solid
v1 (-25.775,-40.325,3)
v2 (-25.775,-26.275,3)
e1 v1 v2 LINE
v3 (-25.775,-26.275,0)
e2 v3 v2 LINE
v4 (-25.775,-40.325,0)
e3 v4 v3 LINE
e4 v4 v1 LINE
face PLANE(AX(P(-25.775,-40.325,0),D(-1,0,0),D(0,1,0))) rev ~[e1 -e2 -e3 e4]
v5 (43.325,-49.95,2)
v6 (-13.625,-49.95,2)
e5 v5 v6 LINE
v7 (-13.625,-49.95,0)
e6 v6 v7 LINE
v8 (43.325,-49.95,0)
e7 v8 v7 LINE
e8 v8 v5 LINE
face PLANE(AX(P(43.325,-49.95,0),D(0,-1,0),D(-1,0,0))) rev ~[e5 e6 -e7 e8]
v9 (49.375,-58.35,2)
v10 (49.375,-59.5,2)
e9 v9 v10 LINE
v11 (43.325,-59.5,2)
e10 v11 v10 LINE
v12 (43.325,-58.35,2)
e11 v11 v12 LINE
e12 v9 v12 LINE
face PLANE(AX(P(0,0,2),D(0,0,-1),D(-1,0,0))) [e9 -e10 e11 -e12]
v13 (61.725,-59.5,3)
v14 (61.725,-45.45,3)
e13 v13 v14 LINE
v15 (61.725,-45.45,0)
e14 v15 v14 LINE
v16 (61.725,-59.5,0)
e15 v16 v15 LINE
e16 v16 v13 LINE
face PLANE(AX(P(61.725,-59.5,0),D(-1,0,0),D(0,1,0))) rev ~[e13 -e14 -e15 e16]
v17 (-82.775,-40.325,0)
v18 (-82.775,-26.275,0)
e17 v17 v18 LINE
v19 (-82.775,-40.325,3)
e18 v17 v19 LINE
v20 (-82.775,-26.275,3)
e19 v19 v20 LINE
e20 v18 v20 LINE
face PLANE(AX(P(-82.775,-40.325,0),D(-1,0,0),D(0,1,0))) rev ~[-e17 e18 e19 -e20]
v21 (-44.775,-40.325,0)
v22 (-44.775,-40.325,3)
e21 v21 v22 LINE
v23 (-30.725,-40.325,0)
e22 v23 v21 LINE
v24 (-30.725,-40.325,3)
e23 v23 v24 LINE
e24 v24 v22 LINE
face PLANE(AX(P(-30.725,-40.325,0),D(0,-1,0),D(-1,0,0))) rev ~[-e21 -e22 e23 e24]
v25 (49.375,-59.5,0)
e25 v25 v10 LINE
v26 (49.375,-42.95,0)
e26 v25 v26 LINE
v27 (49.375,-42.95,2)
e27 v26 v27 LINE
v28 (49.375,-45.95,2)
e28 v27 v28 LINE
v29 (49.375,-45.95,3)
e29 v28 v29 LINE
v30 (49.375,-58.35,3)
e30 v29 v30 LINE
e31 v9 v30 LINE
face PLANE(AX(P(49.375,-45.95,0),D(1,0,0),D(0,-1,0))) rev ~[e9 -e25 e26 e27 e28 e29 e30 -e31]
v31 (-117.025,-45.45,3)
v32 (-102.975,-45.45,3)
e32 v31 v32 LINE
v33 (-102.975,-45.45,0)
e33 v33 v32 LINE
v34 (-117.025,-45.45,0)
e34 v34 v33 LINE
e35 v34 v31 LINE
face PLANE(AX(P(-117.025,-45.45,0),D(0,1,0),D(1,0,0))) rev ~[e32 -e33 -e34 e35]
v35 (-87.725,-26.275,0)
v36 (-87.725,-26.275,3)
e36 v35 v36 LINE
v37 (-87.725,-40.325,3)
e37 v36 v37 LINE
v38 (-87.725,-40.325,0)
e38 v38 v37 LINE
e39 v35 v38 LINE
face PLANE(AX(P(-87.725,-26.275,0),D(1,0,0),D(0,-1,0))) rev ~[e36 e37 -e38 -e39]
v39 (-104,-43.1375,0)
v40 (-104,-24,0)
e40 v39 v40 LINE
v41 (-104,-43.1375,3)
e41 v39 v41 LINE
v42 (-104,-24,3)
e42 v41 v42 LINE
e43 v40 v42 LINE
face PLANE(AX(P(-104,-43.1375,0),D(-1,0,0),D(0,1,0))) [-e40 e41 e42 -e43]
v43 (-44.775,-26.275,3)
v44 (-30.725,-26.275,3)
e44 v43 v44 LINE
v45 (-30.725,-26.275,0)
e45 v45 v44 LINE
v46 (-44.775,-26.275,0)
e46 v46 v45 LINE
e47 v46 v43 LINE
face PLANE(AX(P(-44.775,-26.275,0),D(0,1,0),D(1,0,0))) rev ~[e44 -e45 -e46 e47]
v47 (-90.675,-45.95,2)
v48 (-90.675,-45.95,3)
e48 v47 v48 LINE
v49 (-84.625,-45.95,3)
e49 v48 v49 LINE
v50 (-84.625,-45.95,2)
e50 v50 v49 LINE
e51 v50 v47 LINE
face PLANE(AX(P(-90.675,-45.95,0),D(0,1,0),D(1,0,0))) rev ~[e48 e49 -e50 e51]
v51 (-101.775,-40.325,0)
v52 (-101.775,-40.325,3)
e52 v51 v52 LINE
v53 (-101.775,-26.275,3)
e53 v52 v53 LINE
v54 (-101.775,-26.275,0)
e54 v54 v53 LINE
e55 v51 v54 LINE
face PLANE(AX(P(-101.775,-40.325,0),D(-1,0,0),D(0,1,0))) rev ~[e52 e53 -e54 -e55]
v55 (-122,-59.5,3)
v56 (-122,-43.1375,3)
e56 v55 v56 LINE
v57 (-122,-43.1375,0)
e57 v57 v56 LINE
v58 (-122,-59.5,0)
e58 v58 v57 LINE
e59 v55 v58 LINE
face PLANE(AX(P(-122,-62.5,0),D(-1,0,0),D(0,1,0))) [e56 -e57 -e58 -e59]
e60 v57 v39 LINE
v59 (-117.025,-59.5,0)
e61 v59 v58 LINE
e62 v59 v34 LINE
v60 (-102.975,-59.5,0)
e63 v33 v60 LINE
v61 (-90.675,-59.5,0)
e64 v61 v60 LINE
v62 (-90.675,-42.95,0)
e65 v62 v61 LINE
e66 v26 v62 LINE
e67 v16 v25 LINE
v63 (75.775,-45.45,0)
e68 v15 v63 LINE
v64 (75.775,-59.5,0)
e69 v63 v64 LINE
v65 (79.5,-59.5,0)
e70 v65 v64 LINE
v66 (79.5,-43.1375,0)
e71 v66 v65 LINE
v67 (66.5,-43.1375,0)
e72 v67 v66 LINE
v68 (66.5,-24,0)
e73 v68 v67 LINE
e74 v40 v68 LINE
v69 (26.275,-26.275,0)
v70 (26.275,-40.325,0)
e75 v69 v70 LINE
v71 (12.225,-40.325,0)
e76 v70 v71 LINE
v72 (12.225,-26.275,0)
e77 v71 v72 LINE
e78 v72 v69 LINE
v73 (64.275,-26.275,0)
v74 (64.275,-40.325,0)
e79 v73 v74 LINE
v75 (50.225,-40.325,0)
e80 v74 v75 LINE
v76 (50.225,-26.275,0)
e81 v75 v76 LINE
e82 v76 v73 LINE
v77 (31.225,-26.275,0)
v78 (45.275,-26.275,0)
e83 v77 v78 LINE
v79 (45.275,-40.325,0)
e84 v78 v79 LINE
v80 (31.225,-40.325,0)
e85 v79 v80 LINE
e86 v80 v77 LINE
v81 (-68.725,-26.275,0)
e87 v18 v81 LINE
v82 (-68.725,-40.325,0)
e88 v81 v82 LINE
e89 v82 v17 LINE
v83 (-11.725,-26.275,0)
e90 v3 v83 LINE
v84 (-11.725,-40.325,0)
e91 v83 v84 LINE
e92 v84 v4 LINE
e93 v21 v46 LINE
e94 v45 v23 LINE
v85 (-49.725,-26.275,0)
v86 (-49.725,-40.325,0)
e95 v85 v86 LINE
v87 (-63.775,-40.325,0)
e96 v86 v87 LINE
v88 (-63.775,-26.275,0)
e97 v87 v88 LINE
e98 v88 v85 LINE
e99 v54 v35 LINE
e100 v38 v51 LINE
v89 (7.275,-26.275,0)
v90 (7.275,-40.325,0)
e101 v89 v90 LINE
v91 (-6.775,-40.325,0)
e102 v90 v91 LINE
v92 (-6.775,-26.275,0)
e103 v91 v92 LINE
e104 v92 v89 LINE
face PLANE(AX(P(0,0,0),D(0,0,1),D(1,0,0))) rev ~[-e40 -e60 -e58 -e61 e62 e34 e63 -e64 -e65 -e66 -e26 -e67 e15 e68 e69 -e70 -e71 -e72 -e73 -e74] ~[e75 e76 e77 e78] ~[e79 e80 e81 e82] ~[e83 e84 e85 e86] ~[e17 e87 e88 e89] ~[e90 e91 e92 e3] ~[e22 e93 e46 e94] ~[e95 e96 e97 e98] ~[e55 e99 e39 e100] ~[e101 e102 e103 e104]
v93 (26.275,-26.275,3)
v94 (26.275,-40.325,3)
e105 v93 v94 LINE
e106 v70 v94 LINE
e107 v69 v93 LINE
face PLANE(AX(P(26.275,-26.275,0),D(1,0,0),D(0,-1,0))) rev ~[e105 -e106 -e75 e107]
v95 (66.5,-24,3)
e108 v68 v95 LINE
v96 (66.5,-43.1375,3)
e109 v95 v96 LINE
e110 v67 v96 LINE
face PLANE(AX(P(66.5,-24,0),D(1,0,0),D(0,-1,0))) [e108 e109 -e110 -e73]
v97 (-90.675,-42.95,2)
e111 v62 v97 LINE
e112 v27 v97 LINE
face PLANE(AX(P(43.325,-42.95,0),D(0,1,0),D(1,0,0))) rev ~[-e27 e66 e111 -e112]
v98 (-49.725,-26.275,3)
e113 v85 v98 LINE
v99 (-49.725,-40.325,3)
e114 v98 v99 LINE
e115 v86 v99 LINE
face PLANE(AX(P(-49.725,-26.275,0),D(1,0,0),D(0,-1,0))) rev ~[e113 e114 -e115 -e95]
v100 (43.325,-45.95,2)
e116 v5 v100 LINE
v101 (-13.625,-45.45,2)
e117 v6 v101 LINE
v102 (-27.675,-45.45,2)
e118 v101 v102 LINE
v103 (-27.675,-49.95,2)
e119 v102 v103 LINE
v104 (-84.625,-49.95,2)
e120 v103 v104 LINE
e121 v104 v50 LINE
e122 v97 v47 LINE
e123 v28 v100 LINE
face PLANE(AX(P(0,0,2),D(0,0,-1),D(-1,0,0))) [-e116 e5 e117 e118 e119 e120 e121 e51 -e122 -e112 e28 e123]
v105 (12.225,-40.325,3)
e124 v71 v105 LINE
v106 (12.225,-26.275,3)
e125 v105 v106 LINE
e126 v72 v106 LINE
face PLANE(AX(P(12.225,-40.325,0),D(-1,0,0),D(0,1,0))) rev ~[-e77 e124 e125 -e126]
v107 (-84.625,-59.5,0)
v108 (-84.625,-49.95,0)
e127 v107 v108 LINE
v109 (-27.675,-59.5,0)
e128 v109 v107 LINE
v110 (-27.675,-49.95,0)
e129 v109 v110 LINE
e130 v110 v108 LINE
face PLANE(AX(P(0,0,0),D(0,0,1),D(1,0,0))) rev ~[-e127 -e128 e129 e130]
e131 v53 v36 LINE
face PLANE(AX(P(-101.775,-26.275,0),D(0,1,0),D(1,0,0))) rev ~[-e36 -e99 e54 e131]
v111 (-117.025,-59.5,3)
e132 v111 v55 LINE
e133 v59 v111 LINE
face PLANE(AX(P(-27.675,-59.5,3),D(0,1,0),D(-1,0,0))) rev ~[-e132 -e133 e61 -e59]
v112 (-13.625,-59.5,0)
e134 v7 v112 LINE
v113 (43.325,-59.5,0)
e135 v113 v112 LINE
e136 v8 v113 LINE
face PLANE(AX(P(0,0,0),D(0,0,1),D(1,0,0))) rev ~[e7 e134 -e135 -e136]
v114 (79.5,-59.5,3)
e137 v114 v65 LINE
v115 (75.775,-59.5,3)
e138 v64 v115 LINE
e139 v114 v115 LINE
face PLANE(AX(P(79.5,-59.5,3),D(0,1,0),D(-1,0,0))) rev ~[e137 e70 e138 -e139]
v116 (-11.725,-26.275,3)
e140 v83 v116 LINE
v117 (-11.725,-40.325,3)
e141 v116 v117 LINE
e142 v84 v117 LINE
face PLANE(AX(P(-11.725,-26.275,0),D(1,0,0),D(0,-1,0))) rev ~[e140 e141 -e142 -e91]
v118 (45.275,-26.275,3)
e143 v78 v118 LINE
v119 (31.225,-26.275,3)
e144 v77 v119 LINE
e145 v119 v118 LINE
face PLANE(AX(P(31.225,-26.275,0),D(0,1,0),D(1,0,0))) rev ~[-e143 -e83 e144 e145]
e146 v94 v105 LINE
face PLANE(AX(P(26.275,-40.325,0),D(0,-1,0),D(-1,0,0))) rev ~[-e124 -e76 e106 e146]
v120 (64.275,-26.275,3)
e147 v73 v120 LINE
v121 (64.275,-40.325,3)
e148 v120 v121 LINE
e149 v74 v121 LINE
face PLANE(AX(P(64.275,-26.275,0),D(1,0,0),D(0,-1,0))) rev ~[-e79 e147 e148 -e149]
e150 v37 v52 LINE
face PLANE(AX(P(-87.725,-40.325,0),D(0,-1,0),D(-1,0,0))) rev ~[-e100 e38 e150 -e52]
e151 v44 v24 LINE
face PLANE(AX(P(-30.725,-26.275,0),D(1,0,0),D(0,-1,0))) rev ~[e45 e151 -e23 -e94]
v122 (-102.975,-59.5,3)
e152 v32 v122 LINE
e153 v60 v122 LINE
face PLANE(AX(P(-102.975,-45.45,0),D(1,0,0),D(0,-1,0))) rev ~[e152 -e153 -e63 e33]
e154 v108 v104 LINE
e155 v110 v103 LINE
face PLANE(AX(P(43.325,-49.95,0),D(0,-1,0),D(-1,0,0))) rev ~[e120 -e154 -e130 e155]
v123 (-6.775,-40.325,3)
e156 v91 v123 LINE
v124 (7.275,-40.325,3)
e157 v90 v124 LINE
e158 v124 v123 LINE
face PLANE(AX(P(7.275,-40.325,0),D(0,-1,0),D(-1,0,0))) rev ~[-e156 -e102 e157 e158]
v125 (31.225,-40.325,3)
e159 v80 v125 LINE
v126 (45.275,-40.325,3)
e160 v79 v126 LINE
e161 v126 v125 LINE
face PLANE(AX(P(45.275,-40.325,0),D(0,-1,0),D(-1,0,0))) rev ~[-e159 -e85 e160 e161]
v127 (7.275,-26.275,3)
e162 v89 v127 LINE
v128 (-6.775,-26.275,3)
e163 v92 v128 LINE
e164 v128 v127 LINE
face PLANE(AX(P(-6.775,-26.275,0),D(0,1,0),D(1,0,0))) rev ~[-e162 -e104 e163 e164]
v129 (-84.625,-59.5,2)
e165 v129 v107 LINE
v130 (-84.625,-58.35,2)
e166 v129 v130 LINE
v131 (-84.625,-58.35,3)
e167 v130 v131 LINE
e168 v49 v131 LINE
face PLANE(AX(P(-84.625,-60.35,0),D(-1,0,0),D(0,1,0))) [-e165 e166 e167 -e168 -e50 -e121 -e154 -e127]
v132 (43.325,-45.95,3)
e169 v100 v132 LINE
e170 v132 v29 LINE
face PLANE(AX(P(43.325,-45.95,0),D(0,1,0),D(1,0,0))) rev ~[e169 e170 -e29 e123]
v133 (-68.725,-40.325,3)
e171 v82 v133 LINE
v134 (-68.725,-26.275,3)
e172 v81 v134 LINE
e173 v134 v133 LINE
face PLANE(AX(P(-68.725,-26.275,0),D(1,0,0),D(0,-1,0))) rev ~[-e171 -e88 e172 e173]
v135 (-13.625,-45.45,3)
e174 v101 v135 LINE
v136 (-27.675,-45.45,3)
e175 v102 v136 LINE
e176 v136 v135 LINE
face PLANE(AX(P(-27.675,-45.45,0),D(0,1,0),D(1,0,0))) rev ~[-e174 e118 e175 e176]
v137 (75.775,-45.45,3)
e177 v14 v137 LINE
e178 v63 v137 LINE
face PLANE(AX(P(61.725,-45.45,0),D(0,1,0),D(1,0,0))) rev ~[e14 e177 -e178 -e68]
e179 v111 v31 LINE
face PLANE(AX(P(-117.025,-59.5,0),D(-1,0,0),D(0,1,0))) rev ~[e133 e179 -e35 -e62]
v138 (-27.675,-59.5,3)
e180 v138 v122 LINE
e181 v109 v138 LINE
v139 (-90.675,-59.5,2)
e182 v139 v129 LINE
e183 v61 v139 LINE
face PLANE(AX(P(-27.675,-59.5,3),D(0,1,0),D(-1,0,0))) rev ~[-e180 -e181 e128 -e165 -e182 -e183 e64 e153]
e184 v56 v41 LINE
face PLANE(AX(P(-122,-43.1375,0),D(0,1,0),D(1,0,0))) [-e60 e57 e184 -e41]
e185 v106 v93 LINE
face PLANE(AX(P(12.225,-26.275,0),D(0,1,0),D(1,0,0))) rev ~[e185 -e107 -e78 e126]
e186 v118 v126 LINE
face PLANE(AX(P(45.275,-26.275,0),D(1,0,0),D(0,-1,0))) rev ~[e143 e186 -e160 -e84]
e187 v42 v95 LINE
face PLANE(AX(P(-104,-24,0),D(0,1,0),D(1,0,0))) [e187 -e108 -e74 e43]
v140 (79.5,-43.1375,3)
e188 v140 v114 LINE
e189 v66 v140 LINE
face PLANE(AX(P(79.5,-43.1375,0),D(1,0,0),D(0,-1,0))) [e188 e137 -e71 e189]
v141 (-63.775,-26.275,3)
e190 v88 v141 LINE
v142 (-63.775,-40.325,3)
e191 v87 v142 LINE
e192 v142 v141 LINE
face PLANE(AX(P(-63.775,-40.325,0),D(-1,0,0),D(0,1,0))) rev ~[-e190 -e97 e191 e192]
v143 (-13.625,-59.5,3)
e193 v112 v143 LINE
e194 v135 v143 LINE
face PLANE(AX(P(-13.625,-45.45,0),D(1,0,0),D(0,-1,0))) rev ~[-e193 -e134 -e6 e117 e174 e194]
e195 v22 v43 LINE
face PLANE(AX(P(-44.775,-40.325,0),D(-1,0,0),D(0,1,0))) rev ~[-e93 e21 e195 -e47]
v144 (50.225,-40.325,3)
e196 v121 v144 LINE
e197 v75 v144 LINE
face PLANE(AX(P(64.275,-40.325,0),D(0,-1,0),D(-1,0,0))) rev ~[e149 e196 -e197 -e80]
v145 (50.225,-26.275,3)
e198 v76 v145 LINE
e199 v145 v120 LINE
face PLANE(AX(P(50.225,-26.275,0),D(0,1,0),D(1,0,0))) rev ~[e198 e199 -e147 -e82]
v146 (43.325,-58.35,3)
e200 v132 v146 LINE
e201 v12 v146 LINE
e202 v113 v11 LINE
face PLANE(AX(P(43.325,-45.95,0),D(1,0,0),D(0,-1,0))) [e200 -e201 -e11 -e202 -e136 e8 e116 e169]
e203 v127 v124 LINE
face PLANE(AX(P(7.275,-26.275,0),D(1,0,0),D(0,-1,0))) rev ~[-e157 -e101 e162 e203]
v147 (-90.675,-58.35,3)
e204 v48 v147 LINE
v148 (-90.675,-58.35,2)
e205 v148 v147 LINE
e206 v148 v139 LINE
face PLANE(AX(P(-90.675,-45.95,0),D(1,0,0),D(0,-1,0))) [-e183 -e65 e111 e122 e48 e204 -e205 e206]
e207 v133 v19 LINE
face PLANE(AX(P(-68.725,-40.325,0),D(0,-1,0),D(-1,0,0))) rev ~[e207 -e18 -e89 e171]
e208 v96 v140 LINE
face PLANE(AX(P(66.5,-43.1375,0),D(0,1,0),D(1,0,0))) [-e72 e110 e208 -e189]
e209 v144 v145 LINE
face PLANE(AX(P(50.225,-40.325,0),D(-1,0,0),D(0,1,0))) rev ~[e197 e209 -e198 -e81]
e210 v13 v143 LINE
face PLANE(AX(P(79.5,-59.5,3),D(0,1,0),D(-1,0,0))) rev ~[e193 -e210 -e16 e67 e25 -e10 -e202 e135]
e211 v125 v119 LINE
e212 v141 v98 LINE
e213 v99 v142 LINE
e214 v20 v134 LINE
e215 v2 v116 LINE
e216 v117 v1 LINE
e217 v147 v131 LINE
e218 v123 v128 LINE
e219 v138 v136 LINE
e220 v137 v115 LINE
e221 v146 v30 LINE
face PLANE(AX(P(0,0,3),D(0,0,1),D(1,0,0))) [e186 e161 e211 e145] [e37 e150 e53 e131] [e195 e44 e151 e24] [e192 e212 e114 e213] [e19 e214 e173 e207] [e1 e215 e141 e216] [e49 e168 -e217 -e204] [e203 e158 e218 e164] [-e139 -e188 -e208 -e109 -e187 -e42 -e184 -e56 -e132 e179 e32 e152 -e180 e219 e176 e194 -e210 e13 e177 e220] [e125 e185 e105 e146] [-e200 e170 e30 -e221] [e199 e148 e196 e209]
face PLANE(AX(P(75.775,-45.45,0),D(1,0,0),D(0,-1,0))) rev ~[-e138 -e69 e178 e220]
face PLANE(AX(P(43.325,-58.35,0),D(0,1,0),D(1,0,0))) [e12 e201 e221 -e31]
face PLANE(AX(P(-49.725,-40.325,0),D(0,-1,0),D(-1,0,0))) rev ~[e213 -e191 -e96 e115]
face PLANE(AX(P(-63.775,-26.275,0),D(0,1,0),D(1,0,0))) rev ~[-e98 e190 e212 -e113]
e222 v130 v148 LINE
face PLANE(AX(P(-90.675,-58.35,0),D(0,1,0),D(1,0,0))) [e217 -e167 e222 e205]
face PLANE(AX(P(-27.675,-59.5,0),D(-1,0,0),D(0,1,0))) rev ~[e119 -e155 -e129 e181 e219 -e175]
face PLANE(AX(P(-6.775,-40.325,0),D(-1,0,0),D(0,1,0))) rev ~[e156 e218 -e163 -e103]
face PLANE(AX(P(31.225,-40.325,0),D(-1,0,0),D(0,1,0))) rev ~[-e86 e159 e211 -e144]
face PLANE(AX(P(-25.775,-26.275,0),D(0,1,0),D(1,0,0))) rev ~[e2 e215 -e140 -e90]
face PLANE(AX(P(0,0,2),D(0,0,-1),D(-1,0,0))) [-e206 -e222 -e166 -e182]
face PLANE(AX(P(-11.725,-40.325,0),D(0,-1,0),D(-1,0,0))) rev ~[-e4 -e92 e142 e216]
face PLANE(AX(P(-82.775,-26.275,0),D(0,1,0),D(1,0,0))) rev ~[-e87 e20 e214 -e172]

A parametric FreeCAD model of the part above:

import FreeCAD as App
import Part
import Sketcher

V = App.Vector
Q = App.Units.Quantity

doc = App.newDocument("Part")
body = doc.addObject("PartDesign::Body", "Body")

sketch1 = body.newObject("Sketcher::SketchObject", "Sketch")
sketch1.AttachmentSupport = (doc.getObject("XY_Plane"), [""])
sketch1.MapMode = "FlatFace"
sketch1.addGeometry([
    Part.LineSegment(V(-122, -43.1375, 0), V(-122, -62.5, 0)),
    Part.LineSegment(V(-122, -62.5, 0), V(79.5, -62.5, 0)),
    Part.LineSegment(V(79.5, -62.5, 0), V(79.5, -43.1375, 0)),
    Part.LineSegment(V(79.5, -43.1375, 0), V(66.5, -43.1375, 0)),
    Part.LineSegment(V(66.5, -43.1375, 0), V(66.5, -24, 0)),
    Part.LineSegment(V(66.5, -24, 0), V(-104, -24, 0)),
    Part.LineSegment(V(-104, -24, 0), V(-104, -43.1375, 0)),
    Part.LineSegment(V(-104, -43.1375, 0), V(-122, -43.1375, 0)),
    Part.LineSegment(V(-117.025, -45.45, 0), V(-102.975, -45.45, 0)),
    Part.LineSegment(V(-102.975, -45.45, 0), V(-102.975, -59.5, 0)),
    Part.LineSegment(V(-102.975, -59.5, 0), V(-117.025, -59.5, 0)),
    Part.LineSegment(V(-117.025, -59.5, 0), V(-117.025, -45.45, 0)),
    Part.LineSegment(V(-90.675, -58.35, 0), V(-90.675, -45.95, 0)),
    Part.LineSegment(V(-90.675, -45.95, 0), V(-84.625, -45.95, 0)),
    Part.LineSegment(V(-84.625, -45.95, 0), V(-84.625, -58.35, 0)),
    Part.LineSegment(V(-84.625, -58.35, 0), V(-90.675, -58.35, 0)),
    Part.LineSegment(V(-27.675, -59.5, 0), V(-27.675, -45.45, 0)),
    Part.LineSegment(V(-27.675, -45.45, 0), V(-13.625, -45.45, 0)),
    Part.LineSegment(V(-13.625, -45.45, 0), V(-13.625, -59.5, 0)),
    Part.LineSegment(V(-13.625, -59.5, 0), V(-27.675, -59.5, 0)),
    Part.LineSegment(V(43.325, -58.35, 0), V(43.325, -45.95, 0)),
    Part.LineSegment(V(43.325, -45.95, 0), V(49.375, -45.95, 0)),
    Part.LineSegment(V(49.375, -45.95, 0), V(49.375, -58.35, 0)),
    Part.LineSegment(V(49.375, -58.35, 0), V(43.325, -58.35, 0)),
    Part.LineSegment(V(61.725, -59.5, 0), V(61.725, -45.45, 0)),
    Part.LineSegment(V(61.725, -45.45, 0), V(75.775, -45.45, 0)),
    Part.LineSegment(V(75.775, -45.45, 0), V(75.775, -59.5, 0)),
    Part.LineSegment(V(75.775, -59.5, 0), V(61.725, -59.5, 0)),
    Part.LineSegment(V(-87.725, -26.275, 0), V(-87.725, -40.325, 0)),
    Part.LineSegment(V(-87.725, -40.325, 0), V(-101.775, -40.325, 0)),
    Part.LineSegment(V(-101.775, -40.325, 0), V(-101.775, -26.275, 0)),
    Part.LineSegment(V(-101.775, -26.275, 0), V(-87.725, -26.275, 0)),
    Part.LineSegment(V(-68.725, -40.325, 0), V(-82.775, -40.325, 0)),
    Part.LineSegment(V(-82.775, -40.325, 0), V(-82.775, -26.275, 0)),
    Part.LineSegment(V(-82.775, -26.275, 0), V(-68.725, -26.275, 0)),
    Part.LineSegment(V(-68.725, -26.275, 0), V(-68.725, -40.325, 0)),
    Part.LineSegment(V(-49.725, -26.275, 0), V(-49.725, -40.325, 0)),
    Part.LineSegment(V(-49.725, -40.325, 0), V(-63.775, -40.325, 0)),
    Part.LineSegment(V(-63.775, -40.325, 0), V(-63.775, -26.275, 0)),
    Part.LineSegment(V(-63.775, -26.275, 0), V(-49.725, -26.275, 0)),
    Part.LineSegment(V(-30.725, -40.325, 0), V(-44.775, -40.325, 0)),
    Part.LineSegment(V(-44.775, -40.325, 0), V(-44.775, -26.275, 0)),
    Part.LineSegment(V(-44.775, -26.275, 0), V(-30.725, -26.275, 0)),
    Part.LineSegment(V(-30.725, -26.275, 0), V(-30.725, -40.325, 0)),
    Part.LineSegment(V(-25.775, -40.325, 0), V(-25.775, -26.275, 0)),
    Part.LineSegment(V(-25.775, -26.275, 0), V(-11.725, -26.275, 0)),
    Part.LineSegment(V(-11.725, -26.275, 0), V(-11.725, -40.325, 0)),
    Part.LineSegment(V(-11.725, -40.325, 0), V(-25.775, -40.325, 0)),
    Part.LineSegment(V(7.275, -40.325, 0), V(-6.775, -40.325, 0)),
    Part.LineSegment(V(-6.775, -40.325, 0), V(-6.775, -26.275, 0)),
    Part.LineSegment(V(-6.775, -26.275, 0), V(7.275, -26.275, 0)),
    Part.LineSegment(V(7.275, -26.275, 0), V(7.275, -40.325, 0)),
    Part.LineSegment(V(26.275, -40.325, 0), V(12.225, -40.325, 0)),
    Part.LineSegment(V(12.225, -40.325, 0), V(12.225, -26.275, 0)),
    Part.LineSegment(V(12.225, -26.275, 0), V(26.275, -26.275, 0)),
    Part.LineSegment(V(26.275, -26.275, 0), V(26.275, -40.325, 0)),
    Part.LineSegment(V(31.225, -40.325, 0), V(31.225, -26.275, 0)),
    Part.LineSegment(V(31.225, -26.275, 0), V(45.275, -26.275, 0)),
    Part.LineSegment(V(45.275, -26.275, 0), V(45.275, -40.325, 0)),
    Part.LineSegment(V(45.275, -40.325, 0), V(31.225, -40.325, 0)),
    Part.LineSegment(V(50.225, -40.325, 0), V(50.225, -26.275, 0)),
    Part.LineSegment(V(50.225, -26.275, 0), V(64.275, -26.275, 0)),
    Part.LineSegment(V(64.275, -26.275, 0), V(64.275, -40.325, 0)),
    Part.LineSegment(V(64.275, -40.325, 0), V(50.225, -40.325, 0)),
], False)
sketch1.addConstraint([
    Sketcher.Constraint("Coincident", 0, 2, 1, 1),
    Sketcher.Constraint("Coincident", 1, 2, 2, 1),
    Sketcher.Constraint("Coincident", 2, 2, 3, 1),
    Sketcher.Constraint("Coincident", 3, 2, 4, 1),
    Sketcher.Constraint("Coincident", 4, 2, 5, 1),
    Sketcher.Constraint("Coincident", 5, 2, 6, 1),
    Sketcher.Constraint("Coincident", 6, 2, 7, 1),
    Sketcher.Constraint("Coincident", 7, 2, 0, 1),
    Sketcher.Constraint("Coincident", 8, 2, 9, 1),
    Sketcher.Constraint("Coincident", 9, 2, 10, 1),
    Sketcher.Constraint("Coincident", 10, 2, 11, 1),
    Sketcher.Constraint("Coincident", 11, 2, 8, 1),
    Sketcher.Constraint("Coincident", 12, 2, 13, 1),
    Sketcher.Constraint("Coincident", 13, 2, 14, 1),
    Sketcher.Constraint("Coincident", 14, 2, 15, 1),
    Sketcher.Constraint("Coincident", 15, 2, 12, 1),
    Sketcher.Constraint("Coincident", 16, 2, 17, 1),
    Sketcher.Constraint("Coincident", 17, 2, 18, 1),
    Sketcher.Constraint("Coincident", 18, 2, 19, 1),
    Sketcher.Constraint("Coincident", 19, 2, 16, 1),
    Sketcher.Constraint("Coincident", 20, 2, 21, 1),
    Sketcher.Constraint("Coincident", 21, 2, 22, 1),
    Sketcher.Constraint("Coincident", 22, 2, 23, 1),
    Sketcher.Constraint("Coincident", 23, 2, 20, 1),
    Sketcher.Constraint("Coincident", 24, 2, 25, 1),
    Sketcher.Constraint("Coincident", 25, 2, 26, 1),
    Sketcher.Constraint("Coincident", 26, 2, 27, 1),
    Sketcher.Constraint("Coincident", 27, 2, 24, 1),
    Sketcher.Constraint("Coincident", 28, 2, 29, 1),
    Sketcher.Constraint("Coincident", 29, 2, 30, 1),
    Sketcher.Constraint("Coincident", 30, 2, 31, 1),
    Sketcher.Constraint("Coincident", 31, 2, 28, 1),
    Sketcher.Constraint("Coincident", 32, 2, 33, 1),
    Sketcher.Constraint("Coincident", 33, 2, 34, 1),
    Sketcher.Constraint("Coincident", 34, 2, 35, 1),
    Sketcher.Constraint("Coincident", 35, 2, 32, 1),
    Sketcher.Constraint("Coincident", 36, 2, 37, 1),
    Sketcher.Constraint("Coincident", 37, 2, 38, 1),
    Sketcher.Constraint("Coincident", 38, 2, 39, 1),
    Sketcher.Constraint("Coincident", 39, 2, 36, 1),
    Sketcher.Constraint("Coincident", 40, 2, 41, 1),
    Sketcher.Constraint("Coincident", 41, 2, 42, 1),
    Sketcher.Constraint("Coincident", 42, 2, 43, 1),
    Sketcher.Constraint("Coincident", 43, 2, 40, 1),
    Sketcher.Constraint("Coincident", 44, 2, 45, 1),
    Sketcher.Constraint("Coincident", 45, 2, 46, 1),
    Sketcher.Constraint("Coincident", 46, 2, 47, 1),
    Sketcher.Constraint("Coincident", 47, 2, 44, 1),
    Sketcher.Constraint("Coincident", 48, 2, 49, 1),
    Sketcher.Constraint("Coincident", 49, 2, 50, 1),
    Sketcher.Constraint("Coincident", 50, 2, 51, 1),
    Sketcher.Constraint("Coincident", 51, 2, 48, 1),
    Sketcher.Constraint("Coincident", 52, 2, 53, 1),
    Sketcher.Constraint("Coincident", 53, 2, 54, 1),
    Sketcher.Constraint("Coincident", 54, 2, 55, 1),
    Sketcher.Constraint("Coincident", 55, 2, 52, 1),
    Sketcher.Constraint("Coincident", 56, 2, 57, 1),
    Sketcher.Constraint("Coincident", 57, 2, 58, 1),
    Sketcher.Constraint("Coincident", 58, 2, 59, 1),
    Sketcher.Constraint("Coincident", 59, 2, 56, 1),
    Sketcher.Constraint("Coincident", 60, 2, 61, 1),
    Sketcher.Constraint("Coincident", 61, 2, 62, 1),
    Sketcher.Constraint("Coincident", 62, 2, 63, 1),
    Sketcher.Constraint("Coincident", 63, 2, 60, 1),
    Sketcher.Constraint("Vertical", 0),
    Sketcher.Constraint("Horizontal", 1),
    Sketcher.Constraint("Vertical", 2),
    Sketcher.Constraint("Horizontal", 3),
    Sketcher.Constraint("Vertical", 4),
    Sketcher.Constraint("Horizontal", 5),
    Sketcher.Constraint("Vertical", 6),
    Sketcher.Constraint("Horizontal", 7),
    Sketcher.Constraint("Horizontal", 8),
    Sketcher.Constraint("Vertical", 9),
    Sketcher.Constraint("Horizontal", 10),
    Sketcher.Constraint("Vertical", 11),
    Sketcher.Constraint("Vertical", 12),
    Sketcher.Constraint("Horizontal", 13),
    Sketcher.Constraint("Vertical", 14),
    Sketcher.Constraint("Horizontal", 15),
    Sketcher.Constraint("Vertical", 16),
    Sketcher.Constraint("Horizontal", 17),
    Sketcher.Constraint("Vertical", 18),
    Sketcher.Constraint("Horizontal", 19),
    Sketcher.Constraint("Vertical", 20),
    Sketcher.Constraint("Horizontal", 21),
    Sketcher.Constraint("Vertical", 22),
    Sketcher.Constraint("Horizontal", 23),
    Sketcher.Constraint("Vertical", 24),
    Sketcher.Constraint("Horizontal", 25),
    Sketcher.Constraint("Vertical", 26),
    Sketcher.Constraint("Horizontal", 27),
    Sketcher.Constraint("Vertical", 28),
    Sketcher.Constraint("Horizontal", 29),
    Sketcher.Constraint("Vertical", 30),
    Sketcher.Constraint("Horizontal", 31),
    Sketcher.Constraint("Horizontal", 32),
    Sketcher.Constraint("Vertical", 33),
    Sketcher.Constraint("Horizontal", 34),
    Sketcher.Constraint("Vertical", 35),
    Sketcher.Constraint("Vertical", 36),
    Sketcher.Constraint("Horizontal", 37),
    Sketcher.Constraint("Vertical", 38),
    Sketcher.Constraint("Horizontal", 39),
    Sketcher.Constraint("Horizontal", 40),
    Sketcher.Constraint("Vertical", 41),
    Sketcher.Constraint("Horizontal", 42),
    Sketcher.Constraint("Vertical", 43),
    Sketcher.Constraint("Vertical", 44),
    Sketcher.Constraint("Horizontal", 45),
    Sketcher.Constraint("Vertical", 46),
    Sketcher.Constraint("Horizontal", 47),
    Sketcher.Constraint("Horizontal", 48),
    Sketcher.Constraint("Vertical", 49),
    Sketcher.Constraint("Horizontal", 50),
    Sketcher.Constraint("Vertical", 51),
    Sketcher.Constraint("Horizontal", 52),
    Sketcher.Constraint("Vertical", 53),
    Sketcher.Constraint("Horizontal", 54),
    Sketcher.Constraint("Vertical", 55),
    Sketcher.Constraint("Vertical", 56),
    Sketcher.Constraint("Horizontal", 57),
    Sketcher.Constraint("Vertical", 58),
    Sketcher.Constraint("Horizontal", 59),
    Sketcher.Constraint("Vertical", 60),
    Sketcher.Constraint("Horizontal", 61),
    Sketcher.Constraint("Vertical", 62),
    Sketcher.Constraint("Horizontal", 63),
    Sketcher.Constraint("Horizontal", 3, 2, 6, 2),
    Sketcher.Constraint("Horizontal", 11, 2, 16, 2),
    Sketcher.Constraint("Horizontal", 10, 2, 18, 2),
    Sketcher.Constraint("Horizontal", 13, 2, 20, 2),
    Sketcher.Constraint("Horizontal", 15, 2, 22, 2),
    Sketcher.Constraint("Horizontal", 17, 2, 24, 2),
    Sketcher.Constraint("Horizontal", 19, 2, 26, 2),
    Sketcher.Constraint("Horizontal", 29, 2, 32, 2),
    Sketcher.Constraint("Horizontal", 31, 2, 33, 2),
    Sketcher.Constraint("Horizontal", 35, 2, 36, 2),
    Sketcher.Constraint("Horizontal", 34, 2, 38, 2),
    Sketcher.Constraint("Horizontal", 37, 2, 40, 2),
    Sketcher.Constraint("Horizontal", 39, 2, 41, 2),
    Sketcher.Constraint("Horizontal", 42, 2, 44, 2),
    Sketcher.Constraint("Horizontal", 43, 2, 46, 2),
    Sketcher.Constraint("Horizontal", 47, 2, 48, 2),
    Sketcher.Constraint("Horizontal", 45, 2, 49, 2),
    Sketcher.Constraint("Horizontal", 51, 2, 52, 2),
    Sketcher.Constraint("Horizontal", 50, 2, 53, 2),
    Sketcher.Constraint("Horizontal", 54, 2, 56, 2),
    Sketcher.Constraint("Horizontal", 55, 2, 58, 2),
    Sketcher.Constraint("Horizontal", 57, 2, 60, 2),
    Sketcher.Constraint("Horizontal", 59, 2, 62, 2),
    Sketcher.Constraint("Equal", 10, 17),
    Sketcher.Constraint("Equal", 15, 21),
    Sketcher.Constraint("Equal", 19, 25),
    Sketcher.Constraint("Equal", 27, 29),
    Sketcher.Constraint("Equal", 31, 32),
    Sketcher.Constraint("Equal", 34, 37),
    Sketcher.Constraint("Equal", 39, 40),
    Sketcher.Constraint("Equal", 42, 45),
    Sketcher.Constraint("Equal", 47, 48),
    Sketcher.Constraint("Equal", 50, 52),
    Sketcher.Constraint("Equal", 54, 57),
    Sketcher.Constraint("Equal", 59, 61),
    Sketcher.Constraint("Equal", 63, 9),
    Sketcher.Constraint("Equal", 26, 28),
    Sketcher.Constraint("DistanceY", 12, 1, 12, 2, Q("12.4 mm")),
    Sketcher.Constraint("DistanceX", 3, 2, 3, 1, Q("13 mm")),
    Sketcher.Constraint("DistanceX", 7, 2, 7, 1, Q("18 mm")),
    Sketcher.Constraint("DistanceX", 1, 1, 1, 2, Q("201.5 mm")),
    Sketcher.Constraint("DistanceX", 0, 2, -1, 1, Q("122 mm")),
    Sketcher.Constraint("DistanceY", 4, 2, -1, 1, Q("24 mm")),
    Sketcher.Constraint("DistanceX", 8, 1, 8, 2, Q("14.05 mm")),
    Sketcher.Constraint("DistanceX", 13, 1, 13, 2, Q("6.05 mm")),
    Sketcher.Constraint("DistanceY", 0, 2, -1, 1, Q("62.5 mm")),
    Sketcher.Constraint("DistanceY", 9, 2, -1, 1, Q("59.5 mm")),
    Sketcher.Constraint("DistanceY", 12, 2, -1, 1, Q("45.95 mm")),
    Sketcher.Constraint("DistanceY", 0, 2, 0, 1, Q("19.3625 mm")),
    Sketcher.Constraint("DistanceX", 8, 2, -1, 1, Q("102.975 mm")),
    Sketcher.Constraint("DistanceX", 12, 2, -1, 1, Q("90.675 mm")),
    Sketcher.Constraint("DistanceX", 16, 2, -1, 1, Q("27.675 mm")),
    Sketcher.Constraint("DistanceX", -1, 1, 20, 2, Q("43.325 mm")),
    Sketcher.Constraint("DistanceX", -1, 1, 24, 2, Q("61.725 mm")),
    Sketcher.Constraint("DistanceX", 28, 2, -1, 1, Q("87.725 mm")),
    Sketcher.Constraint("DistanceY", 28, 2, -1, 1, Q("40.325 mm")),
    Sketcher.Constraint("DistanceX", 32, 2, -1, 1, Q("82.775 mm")),
    Sketcher.Constraint("DistanceX", 36, 2, -1, 1, Q("49.725 mm")),
    Sketcher.Constraint("DistanceX", 40, 2, -1, 1, Q("44.775 mm")),
    Sketcher.Constraint("DistanceX", 44, 2, -1, 1, Q("25.775 mm")),
    Sketcher.Constraint("DistanceX", 48, 2, -1, 1, Q("6.775 mm")),
    Sketcher.Constraint("DistanceX", -1, 1, 52, 2, Q("12.225 mm")),
    Sketcher.Constraint("DistanceX", -1, 1, 56, 2, Q("31.225 mm")),
    Sketcher.Constraint("DistanceX", -1, 1, 60, 2, Q("50.225 mm")),
])
pad1 = body.newObject("PartDesign::Pad", "Pad")
pad1.Profile = sketch1
pad1.Length = 3

sketch2 = body.newObject("Sketcher::SketchObject", "Sketch001")
sketch2.AttachmentSupport = (doc.getObject("XY_Plane"), [""])
sketch2.MapMode = "FlatFace"
sketch2.addGeometry([
    Part.LineSegment(V(49.375, -42.95, 0), V(49.375, -60.35, 0)),
    Part.LineSegment(V(49.375, -60.35, 0), V(43.325, -60.35, 0)),
    Part.LineSegment(V(43.325, -60.35, 0), V(43.325, -49.95, 0)),
    Part.LineSegment(V(43.325, -49.95, 0), V(-84.625, -49.95, 0)),
    Part.LineSegment(V(-84.625, -49.95, 0), V(-84.625, -60.35, 0)),
    Part.LineSegment(V(-84.625, -60.35, 0), V(-90.675, -60.35, 0)),
    Part.LineSegment(V(-90.675, -60.35, 0), V(-90.675, -42.95, 0)),
    Part.LineSegment(V(-90.675, -42.95, 0), V(49.375, -42.95, 0)),
], False)
sketch2.addConstraint([
    Sketcher.Constraint("Coincident", 0, 2, 1, 1),
    Sketcher.Constraint("Coincident", 1, 2, 2, 1),
    Sketcher.Constraint("Coincident", 2, 2, 3, 1),
    Sketcher.Constraint("Coincident", 3, 2, 4, 1),
    Sketcher.Constraint("Coincident", 4, 2, 5, 1),
    Sketcher.Constraint("Coincident", 5, 2, 6, 1),
    Sketcher.Constraint("Coincident", 6, 2, 7, 1),
    Sketcher.Constraint("Coincident", 7, 2, 0, 1),
    Sketcher.Constraint("Vertical", 0),
    Sketcher.Constraint("Horizontal", 1),
    Sketcher.Constraint("Vertical", 2),
    Sketcher.Constraint("Horizontal", 3),
    Sketcher.Constraint("Vertical", 4),
    Sketcher.Constraint("Horizontal", 5),
    Sketcher.Constraint("Vertical", 6),
    Sketcher.Constraint("Horizontal", 7),
    Sketcher.Constraint("Horizontal", 1, 2, 4, 2),
    Sketcher.Constraint("Equal", 1, 5),
    Sketcher.Constraint("DistanceY", 0, 2, 0, 1, Q("17.4 mm")),
    Sketcher.Constraint("DistanceY", 2, 1, 2, 2, Q("10.4 mm")),
    Sketcher.Constraint("DistanceX", 3, 2, 0, 2, Q("134 mm")),
    Sketcher.Constraint("DistanceX", 1, 2, 1, 1, Q("6.05 mm")),
    Sketcher.Constraint("DistanceY", 0, 2, -1, 1, Q("60.35 mm")),
    Sketcher.Constraint("DistanceX", -1, 1, 0, 2, Q("49.375 mm")),
])
pocket1 = body.newObject("PartDesign::Pocket", "Pocket")
pocket1.Profile = sketch2
pocket1.Length = 2
pocket1.Reversed = True

sketch3 = body.newObject("Sketcher::SketchObject", "Sketch002")
sketch3.AttachmentSupport = (doc.getObject("XY_Plane"), [""])
sketch3.MapMode = "FlatFace"
sketch3.AttachmentOffset = App.Placement(V(0, 0, 3), App.Rotation())
sketch3.addGeometry([
    Part.LineSegment(V(79.5, -59.5, 0), V(-122, -59.5, 0)),
    Part.LineSegment(V(-122, -59.5, 0), V(-122, -62.5, 0)),
    Part.LineSegment(V(-122, -62.5, 0), V(79.5, -62.5, 0)),
    Part.LineSegment(V(79.5, -62.5, 0), V(79.5, -59.5, 0)),
], False)
sketch3.addConstraint([
    Sketcher.Constraint("Coincident", 0, 2, 1, 1),
    Sketcher.Constraint("Coincident", 1, 2, 2, 1),
    Sketcher.Constraint("Coincident", 2, 2, 3, 1),
    Sketcher.Constraint("Coincident", 3, 2, 0, 1),
    Sketcher.Constraint("Horizontal", 0),
    Sketcher.Constraint("Vertical", 1),
    Sketcher.Constraint("Horizontal", 2),
    Sketcher.Constraint("Vertical", 3),
    Sketcher.Constraint("DistanceY", 1, 2, 1, 1, Q("3 mm")),
    Sketcher.Constraint("DistanceX", 0, 2, 0, 1, Q("201.5 mm")),
    Sketcher.Constraint("DistanceX", 0, 2, -1, 1, Q("122 mm")),
    Sketcher.Constraint("DistanceY", 0, 2, -1, 1, Q("59.5 mm")),
])
pocket2 = body.newObject("PartDesign::Pocket", "Pocket001")
pocket2.Profile = sketch3
pocket2.Length = 3

doc.recompute()
